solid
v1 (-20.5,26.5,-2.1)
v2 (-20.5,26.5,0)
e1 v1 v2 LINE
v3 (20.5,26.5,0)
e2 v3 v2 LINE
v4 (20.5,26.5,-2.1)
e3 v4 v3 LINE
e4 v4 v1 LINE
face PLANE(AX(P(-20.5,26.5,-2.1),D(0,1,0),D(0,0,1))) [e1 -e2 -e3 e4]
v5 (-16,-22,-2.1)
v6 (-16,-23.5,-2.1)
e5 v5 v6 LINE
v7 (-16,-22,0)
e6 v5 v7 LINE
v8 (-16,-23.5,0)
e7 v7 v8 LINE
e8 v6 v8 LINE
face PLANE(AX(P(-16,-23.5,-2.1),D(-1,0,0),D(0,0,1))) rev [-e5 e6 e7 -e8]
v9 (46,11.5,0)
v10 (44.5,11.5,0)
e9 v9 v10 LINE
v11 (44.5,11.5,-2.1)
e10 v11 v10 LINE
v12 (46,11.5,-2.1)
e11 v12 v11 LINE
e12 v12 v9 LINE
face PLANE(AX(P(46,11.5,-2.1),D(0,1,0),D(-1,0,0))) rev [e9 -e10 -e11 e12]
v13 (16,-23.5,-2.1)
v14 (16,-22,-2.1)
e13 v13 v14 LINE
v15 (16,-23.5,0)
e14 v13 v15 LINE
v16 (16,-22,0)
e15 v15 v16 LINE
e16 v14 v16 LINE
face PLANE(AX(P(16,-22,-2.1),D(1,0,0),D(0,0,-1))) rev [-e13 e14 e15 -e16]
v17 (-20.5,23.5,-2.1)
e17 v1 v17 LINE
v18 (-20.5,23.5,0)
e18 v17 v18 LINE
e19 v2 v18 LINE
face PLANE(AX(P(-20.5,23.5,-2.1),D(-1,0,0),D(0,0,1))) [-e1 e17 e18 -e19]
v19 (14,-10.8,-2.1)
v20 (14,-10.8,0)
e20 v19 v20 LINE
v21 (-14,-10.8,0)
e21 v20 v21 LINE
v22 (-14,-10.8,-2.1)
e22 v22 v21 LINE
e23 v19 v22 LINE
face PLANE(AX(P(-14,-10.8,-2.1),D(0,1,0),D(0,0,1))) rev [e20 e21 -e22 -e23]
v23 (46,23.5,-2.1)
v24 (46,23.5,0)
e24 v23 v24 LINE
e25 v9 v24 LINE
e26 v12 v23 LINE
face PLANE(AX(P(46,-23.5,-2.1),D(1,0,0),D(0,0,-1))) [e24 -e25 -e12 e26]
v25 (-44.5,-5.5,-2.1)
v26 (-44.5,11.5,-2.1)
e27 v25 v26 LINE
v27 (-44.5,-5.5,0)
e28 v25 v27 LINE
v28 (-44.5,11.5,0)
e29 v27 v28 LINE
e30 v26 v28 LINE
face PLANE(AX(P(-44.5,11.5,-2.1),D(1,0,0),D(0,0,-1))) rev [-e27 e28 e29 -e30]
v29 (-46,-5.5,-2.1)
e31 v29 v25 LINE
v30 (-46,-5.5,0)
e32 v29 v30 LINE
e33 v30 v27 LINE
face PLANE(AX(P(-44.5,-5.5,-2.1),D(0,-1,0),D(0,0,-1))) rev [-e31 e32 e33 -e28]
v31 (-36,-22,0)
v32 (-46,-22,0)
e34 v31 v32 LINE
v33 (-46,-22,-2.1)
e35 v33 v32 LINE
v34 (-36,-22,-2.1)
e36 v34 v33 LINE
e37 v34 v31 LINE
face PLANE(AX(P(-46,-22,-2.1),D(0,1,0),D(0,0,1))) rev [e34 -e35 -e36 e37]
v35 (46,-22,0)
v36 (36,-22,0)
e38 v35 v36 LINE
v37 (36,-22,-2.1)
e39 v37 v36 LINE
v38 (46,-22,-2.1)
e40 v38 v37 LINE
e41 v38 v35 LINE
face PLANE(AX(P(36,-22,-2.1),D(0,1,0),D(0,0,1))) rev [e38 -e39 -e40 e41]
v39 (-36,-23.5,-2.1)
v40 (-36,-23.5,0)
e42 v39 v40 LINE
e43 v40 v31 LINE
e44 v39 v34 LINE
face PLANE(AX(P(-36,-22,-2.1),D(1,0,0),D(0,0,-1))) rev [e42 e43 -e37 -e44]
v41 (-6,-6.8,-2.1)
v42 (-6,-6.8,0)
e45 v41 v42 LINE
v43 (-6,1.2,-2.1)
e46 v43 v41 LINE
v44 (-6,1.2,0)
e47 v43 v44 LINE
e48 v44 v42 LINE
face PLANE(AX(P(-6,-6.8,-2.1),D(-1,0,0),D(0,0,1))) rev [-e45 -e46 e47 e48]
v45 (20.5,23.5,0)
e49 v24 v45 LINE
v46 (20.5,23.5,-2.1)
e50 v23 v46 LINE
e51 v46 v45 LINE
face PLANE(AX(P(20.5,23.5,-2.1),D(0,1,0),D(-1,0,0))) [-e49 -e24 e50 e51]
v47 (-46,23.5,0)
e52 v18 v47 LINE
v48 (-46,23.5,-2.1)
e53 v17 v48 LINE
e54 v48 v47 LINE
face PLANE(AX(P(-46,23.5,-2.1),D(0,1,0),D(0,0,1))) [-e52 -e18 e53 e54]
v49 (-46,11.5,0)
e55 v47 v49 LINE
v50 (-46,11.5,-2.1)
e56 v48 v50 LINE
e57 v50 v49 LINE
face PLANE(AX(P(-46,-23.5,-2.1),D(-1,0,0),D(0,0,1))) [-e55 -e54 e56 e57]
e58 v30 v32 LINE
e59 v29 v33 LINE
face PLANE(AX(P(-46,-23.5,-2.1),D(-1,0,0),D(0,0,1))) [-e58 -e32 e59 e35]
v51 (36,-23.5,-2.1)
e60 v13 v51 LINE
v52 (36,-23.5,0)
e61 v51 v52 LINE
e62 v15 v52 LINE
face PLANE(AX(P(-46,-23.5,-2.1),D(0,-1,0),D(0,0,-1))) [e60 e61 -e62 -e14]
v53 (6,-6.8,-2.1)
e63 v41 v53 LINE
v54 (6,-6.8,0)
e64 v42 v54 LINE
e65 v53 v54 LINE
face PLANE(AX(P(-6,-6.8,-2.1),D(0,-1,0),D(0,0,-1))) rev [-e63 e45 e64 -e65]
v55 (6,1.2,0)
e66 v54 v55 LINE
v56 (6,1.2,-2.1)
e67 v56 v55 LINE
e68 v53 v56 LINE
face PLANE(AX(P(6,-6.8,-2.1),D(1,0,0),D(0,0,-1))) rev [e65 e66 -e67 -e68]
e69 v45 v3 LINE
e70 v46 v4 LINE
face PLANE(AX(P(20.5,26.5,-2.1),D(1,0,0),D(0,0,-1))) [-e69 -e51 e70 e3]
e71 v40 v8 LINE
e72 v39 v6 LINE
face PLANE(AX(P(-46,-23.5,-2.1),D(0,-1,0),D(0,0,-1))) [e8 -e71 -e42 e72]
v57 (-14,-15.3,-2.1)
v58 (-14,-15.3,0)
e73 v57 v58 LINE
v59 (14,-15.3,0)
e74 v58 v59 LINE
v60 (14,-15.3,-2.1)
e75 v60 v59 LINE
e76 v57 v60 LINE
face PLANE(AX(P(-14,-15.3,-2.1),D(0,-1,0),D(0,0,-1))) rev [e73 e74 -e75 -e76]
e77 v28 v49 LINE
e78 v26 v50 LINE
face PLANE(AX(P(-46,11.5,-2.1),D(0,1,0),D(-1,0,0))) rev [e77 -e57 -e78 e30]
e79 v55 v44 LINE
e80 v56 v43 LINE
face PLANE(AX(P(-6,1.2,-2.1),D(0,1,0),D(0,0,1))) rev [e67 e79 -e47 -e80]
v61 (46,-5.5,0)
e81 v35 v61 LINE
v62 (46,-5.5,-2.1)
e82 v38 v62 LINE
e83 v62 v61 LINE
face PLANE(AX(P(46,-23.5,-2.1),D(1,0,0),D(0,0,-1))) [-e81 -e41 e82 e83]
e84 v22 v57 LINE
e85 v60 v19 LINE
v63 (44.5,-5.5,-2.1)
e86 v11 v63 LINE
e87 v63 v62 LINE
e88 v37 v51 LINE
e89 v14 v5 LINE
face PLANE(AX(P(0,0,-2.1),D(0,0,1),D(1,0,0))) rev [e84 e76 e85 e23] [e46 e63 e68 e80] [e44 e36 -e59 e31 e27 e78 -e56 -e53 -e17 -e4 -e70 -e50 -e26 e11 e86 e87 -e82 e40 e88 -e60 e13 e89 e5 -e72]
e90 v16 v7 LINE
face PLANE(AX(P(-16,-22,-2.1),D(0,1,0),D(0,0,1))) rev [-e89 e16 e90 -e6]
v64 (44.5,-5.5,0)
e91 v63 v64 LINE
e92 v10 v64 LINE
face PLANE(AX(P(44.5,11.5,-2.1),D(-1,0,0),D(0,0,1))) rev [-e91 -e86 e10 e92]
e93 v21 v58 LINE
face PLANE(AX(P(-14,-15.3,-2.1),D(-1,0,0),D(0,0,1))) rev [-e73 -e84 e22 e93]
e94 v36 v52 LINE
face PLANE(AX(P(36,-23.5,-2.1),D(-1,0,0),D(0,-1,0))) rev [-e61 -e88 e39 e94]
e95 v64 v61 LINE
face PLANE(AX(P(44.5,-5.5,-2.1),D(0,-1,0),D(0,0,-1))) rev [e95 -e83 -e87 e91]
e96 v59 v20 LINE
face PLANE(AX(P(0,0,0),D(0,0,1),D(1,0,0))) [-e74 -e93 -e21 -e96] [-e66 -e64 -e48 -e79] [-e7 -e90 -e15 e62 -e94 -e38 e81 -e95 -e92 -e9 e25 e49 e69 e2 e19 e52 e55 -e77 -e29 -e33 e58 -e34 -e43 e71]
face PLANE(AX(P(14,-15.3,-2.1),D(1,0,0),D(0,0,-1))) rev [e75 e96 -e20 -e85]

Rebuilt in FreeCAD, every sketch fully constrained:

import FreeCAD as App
import Part
import Sketcher


def add_polygon(sketch, points):
    """Adds a closed chain of lines whose ends are joined by coincident constraints."""
    first, n = sketch.GeometryCount, len(points)
    for a, b in zip(points, points[1:] + points[:1]):
        sketch.addGeometry(Part.LineSegment(App.Vector(*a, 0), App.Vector(*b, 0)), False)
    for i in range(n):
        sketch.addConstraint(Sketcher.Constraint("Coincident", first + i, 2, first + (i + 1) % n, 1))

doc = App.newDocument("Part")
params = doc.addObject("Spreadsheet::Sheet", "Params")
for row, (alias, value) in enumerate([
    ("sketch1_width", "92 mm"),
    ("sketch1_width2", "41 mm"),
    ("sketch1_height", "47 mm"),
    ("sketch1_height2", "3 mm"),
    ("pad1_length", "2.1 mm"),
    ("sketch2_width", "28 mm"),
    ("sketch2_width2", "12 mm"),
    ("sketch2_height", "8 mm"),
    ("sketch2_height2", "4.5 mm"),
    ("sketch3_width", "10 mm"),
    ("sketch3_width2", "32 mm"),
    ("sketch3_height", "17 mm"),
    ("sketch3_width3", "1.5 mm"),
], start=1):
    params.set(f"A{row}", alias)
    params.set(f"B{row}", "=" + value)
    params.setAlias(f"B{row}", alias)

body = doc.addObject("PartDesign::Body", "Body")

# Sketch on XY plane
sketch1 = doc.addObject("Sketcher::SketchObject", "Sketch")
body.addObject(sketch1)
sketch1.AttachmentSupport = (doc.XY_Plane, [""])
sketch1.MapMode = "FlatFace"
add_polygon(sketch1, [(-20.5, 23.5), (-46, 23.5), (-46, -23.5), (46, -23.5), (46, 23.5), (20.5, 23.5), (20.5, 26.5), (-20.5, 26.5)])  # lines 0-7
sketch1.addConstraint([
    Sketcher.Constraint("Horizontal", 0),
    Sketcher.Constraint("Vertical", 1),
    Sketcher.Constraint("Horizontal", 2),
    Sketcher.Constraint("Vertical", 3),
    Sketcher.Constraint("Horizontal", 4),
    Sketcher.Constraint("Vertical", 5),
    Sketcher.Constraint("Horizontal", 6),
    Sketcher.Constraint("Vertical", 7),
    Sketcher.Constraint("Symmetric", 0, 2, 2, 2, -1, 1),
    Sketcher.Constraint("Symmetric", 4, 2, 7, 2, -2),
    Sketcher.Constraint("DistanceX", 2, 1, 2, 2, 92.0),
    Sketcher.Constraint("DistanceX", 6, 2, 6, 1, 41.0),
    Sketcher.Constraint("DistanceY", 1, 2, 1, 1, 47.0),
    Sketcher.Constraint("DistanceY", 5, 1, 5, 2, 3.0),
])
sketch1.setExpression("Constraints[18]", "Params.sketch1_width")
sketch1.setExpression("Constraints[19]", "Params.sketch1_width2")
sketch1.setExpression("Constraints[20]", "Params.sketch1_height")
sketch1.setExpression("Constraints[21]", "Params.sketch1_height2")
pad1 = doc.addObject("PartDesign::Pad", "Pad")
body.addObject(pad1)
pad1.Profile = sketch1
pad1.setExpression("Length", "Params.pad1_length")
pad1.Reversed = True

# Sketch on XY plane
sketch2 = doc.addObject("Sketcher::SketchObject", "Sketch001")
body.addObject(sketch2)
sketch2.AttachmentSupport = (doc.XY_Plane, [""])
sketch2.MapMode = "FlatFace"
add_polygon(sketch2, [(-14, -10.8), (-14, -15.3), (14, -15.3), (14, -10.8)])  # lines 0-3
add_polygon(sketch2, [(-6, 1.2), (-6, -6.8), (6, -6.8), (6, 1.2)])  # lines 4-7
sketch2.addConstraint([
    Sketcher.Constraint("Vertical", 0),
    Sketcher.Constraint("Horizontal", 1),
    Sketcher.Constraint("Vertical", 2),
    Sketcher.Constraint("Horizontal", 3),
    Sketcher.Constraint("Vertical", 4),
    Sketcher.Constraint("Horizontal", 5),
    Sketcher.Constraint("Vertical", 6),
    Sketcher.Constraint("Horizontal", 7),
    Sketcher.Constraint("DistanceX", 1, 1, 1, 2, 28.0),
    Sketcher.Constraint("DistanceX", 5, 1, 5, 2, 12.0),
    Sketcher.Constraint("DistanceY", 4, 2, 4, 1, 8.0),
    Sketcher.Constraint("DistanceY", 0, 2, 0, 1, 4.5),
    Sketcher.Constraint("DistanceX", 0, 2, -1, 1, 14.0),
    Sketcher.Constraint("DistanceX", 4, 2, -1, 1, 6.0),
    Sketcher.Constraint("DistanceY", 3, 2, 4, 2, 4.0),
    Sketcher.Constraint("DistanceY", 0, 2, -1, 1, 15.3),
])
sketch2.setExpression("Constraints[16]", "Params.sketch2_width")
sketch2.setExpression("Constraints[17]", "Params.sketch2_width2")
sketch2.setExpression("Constraints[18]", "Params.sketch2_height")
sketch2.setExpression("Constraints[19]", "Params.sketch2_height2")
pocket1 = doc.addObject("PartDesign::Pocket", "Pocket")
body.addObject(pocket1)
pocket1.Profile = sketch2
pocket1.Type = "ThroughAll"

# Sketch on XY plane
sketch3 = doc.addObject("Sketcher::SketchObject", "Sketch002")
body.addObject(sketch3)
sketch3.AttachmentSupport = (doc.XY_Plane, [""])
sketch3.MapMode = "FlatFace"
add_polygon(sketch3, [(-46, 11.5), (-46, -5.5), (-44.5, -5.5), (-44.5, 11.5)])  # lines 0-3
add_polygon(sketch3, [(-46, -22), (-46, -23.5), (-36, -23.5), (-36, -22)])  # lines 4-7
add_polygon(sketch3, [(-16, -22), (-16, -23.5), (16, -23.5), (16, -22)])  # lines 8-11
add_polygon(sketch3, [(36, -22), (36, -23.5), (46, -23.5), (46, -22)])  # lines 12-15
add_polygon(sketch3, [(44.5, 11.5), (44.5, -5.5), (46, -5.5), (46, 11.5)])  # lines 16-19
sketch3.addConstraint([
    Sketcher.Constraint("Vertical", 0),
    Sketcher.Constraint("Horizontal", 1),
    Sketcher.Constraint("Vertical", 2),
    Sketcher.Constraint("Horizontal", 3),
    Sketcher.Constraint("Vertical", 4),
    Sketcher.Constraint("Horizontal", 5),
    Sketcher.Constraint("Vertical", 6),
    Sketcher.Constraint("Horizontal", 7),
    Sketcher.Constraint("Vertical", 8),
    Sketcher.Constraint("Horizontal", 9),
    Sketcher.Constraint("Vertical", 10),
    Sketcher.Constraint("Horizontal", 11),
    Sketcher.Constraint("Vertical", 12),
    Sketcher.Constraint("Horizontal", 13),
    Sketcher.Constraint("Vertical", 14),
    Sketcher.Constraint("Horizontal", 15),
    Sketcher.Constraint("Vertical", 16),
    Sketcher.Constraint("Horizontal", 17),
    Sketcher.Constraint("Vertical", 18),
    Sketcher.Constraint("Horizontal", 19),
    Sketcher.Constraint("Symmetric", 5, 2, 12, 2, -2),
    Sketcher.Constraint("Symmetric", 7, 2, 14, 2, -2),
    Sketcher.Constraint("Symmetric", 1, 2, 16, 2, -2),
    Sketcher.Constraint("Symmetric", 3, 2, 18, 2, -2),
    Sketcher.Constraint("Horizontal", 5, 2, 8, 2),
    Sketcher.Constraint("Horizontal", 7, 2, 10, 2),
    Sketcher.Constraint("Vertical", 3, 2, 4, 2),
    Sketcher.Constraint("Equal", 19, 4),
    Sketcher.Constraint("DistanceX", 5, 1, 5, 2, 10.0),
    Sketcher.Constraint("DistanceX", 9, 1, 9, 2, 32.0),
    Sketcher.Constraint("DistanceY", 0, 2, 0, 1, 17.0),
    Sketcher.Constraint("DistanceX", 1, 1, 1, 2, 1.5),
    Sketcher.Constraint("DistanceX", 0, 2, -1, 1, 46.0),
    Sketcher.Constraint("DistanceY", 6, 2, -1, 1, 22.0),
    Sketcher.Constraint("DistanceX", 8, 2, -1, 1, 16.0),
    Sketcher.Constraint("DistanceY", 4, 2, 0, 2, 18.0),
])
sketch3.setExpression("Constraints[48]", "Params.sketch3_width")
sketch3.setExpression("Constraints[49]", "Params.sketch3_width2")
sketch3.setExpression("Constraints[50]", "Params.sketch3_height")
sketch3.setExpression("Constraints[51]", "Params.sketch3_width3")
pocket2 = doc.addObject("PartDesign::Pocket", "Pocket001")
body.addObject(pocket2)
pocket2.Profile = sketch3
pocket2.Type = "ThroughAll"

doc.recompute()
